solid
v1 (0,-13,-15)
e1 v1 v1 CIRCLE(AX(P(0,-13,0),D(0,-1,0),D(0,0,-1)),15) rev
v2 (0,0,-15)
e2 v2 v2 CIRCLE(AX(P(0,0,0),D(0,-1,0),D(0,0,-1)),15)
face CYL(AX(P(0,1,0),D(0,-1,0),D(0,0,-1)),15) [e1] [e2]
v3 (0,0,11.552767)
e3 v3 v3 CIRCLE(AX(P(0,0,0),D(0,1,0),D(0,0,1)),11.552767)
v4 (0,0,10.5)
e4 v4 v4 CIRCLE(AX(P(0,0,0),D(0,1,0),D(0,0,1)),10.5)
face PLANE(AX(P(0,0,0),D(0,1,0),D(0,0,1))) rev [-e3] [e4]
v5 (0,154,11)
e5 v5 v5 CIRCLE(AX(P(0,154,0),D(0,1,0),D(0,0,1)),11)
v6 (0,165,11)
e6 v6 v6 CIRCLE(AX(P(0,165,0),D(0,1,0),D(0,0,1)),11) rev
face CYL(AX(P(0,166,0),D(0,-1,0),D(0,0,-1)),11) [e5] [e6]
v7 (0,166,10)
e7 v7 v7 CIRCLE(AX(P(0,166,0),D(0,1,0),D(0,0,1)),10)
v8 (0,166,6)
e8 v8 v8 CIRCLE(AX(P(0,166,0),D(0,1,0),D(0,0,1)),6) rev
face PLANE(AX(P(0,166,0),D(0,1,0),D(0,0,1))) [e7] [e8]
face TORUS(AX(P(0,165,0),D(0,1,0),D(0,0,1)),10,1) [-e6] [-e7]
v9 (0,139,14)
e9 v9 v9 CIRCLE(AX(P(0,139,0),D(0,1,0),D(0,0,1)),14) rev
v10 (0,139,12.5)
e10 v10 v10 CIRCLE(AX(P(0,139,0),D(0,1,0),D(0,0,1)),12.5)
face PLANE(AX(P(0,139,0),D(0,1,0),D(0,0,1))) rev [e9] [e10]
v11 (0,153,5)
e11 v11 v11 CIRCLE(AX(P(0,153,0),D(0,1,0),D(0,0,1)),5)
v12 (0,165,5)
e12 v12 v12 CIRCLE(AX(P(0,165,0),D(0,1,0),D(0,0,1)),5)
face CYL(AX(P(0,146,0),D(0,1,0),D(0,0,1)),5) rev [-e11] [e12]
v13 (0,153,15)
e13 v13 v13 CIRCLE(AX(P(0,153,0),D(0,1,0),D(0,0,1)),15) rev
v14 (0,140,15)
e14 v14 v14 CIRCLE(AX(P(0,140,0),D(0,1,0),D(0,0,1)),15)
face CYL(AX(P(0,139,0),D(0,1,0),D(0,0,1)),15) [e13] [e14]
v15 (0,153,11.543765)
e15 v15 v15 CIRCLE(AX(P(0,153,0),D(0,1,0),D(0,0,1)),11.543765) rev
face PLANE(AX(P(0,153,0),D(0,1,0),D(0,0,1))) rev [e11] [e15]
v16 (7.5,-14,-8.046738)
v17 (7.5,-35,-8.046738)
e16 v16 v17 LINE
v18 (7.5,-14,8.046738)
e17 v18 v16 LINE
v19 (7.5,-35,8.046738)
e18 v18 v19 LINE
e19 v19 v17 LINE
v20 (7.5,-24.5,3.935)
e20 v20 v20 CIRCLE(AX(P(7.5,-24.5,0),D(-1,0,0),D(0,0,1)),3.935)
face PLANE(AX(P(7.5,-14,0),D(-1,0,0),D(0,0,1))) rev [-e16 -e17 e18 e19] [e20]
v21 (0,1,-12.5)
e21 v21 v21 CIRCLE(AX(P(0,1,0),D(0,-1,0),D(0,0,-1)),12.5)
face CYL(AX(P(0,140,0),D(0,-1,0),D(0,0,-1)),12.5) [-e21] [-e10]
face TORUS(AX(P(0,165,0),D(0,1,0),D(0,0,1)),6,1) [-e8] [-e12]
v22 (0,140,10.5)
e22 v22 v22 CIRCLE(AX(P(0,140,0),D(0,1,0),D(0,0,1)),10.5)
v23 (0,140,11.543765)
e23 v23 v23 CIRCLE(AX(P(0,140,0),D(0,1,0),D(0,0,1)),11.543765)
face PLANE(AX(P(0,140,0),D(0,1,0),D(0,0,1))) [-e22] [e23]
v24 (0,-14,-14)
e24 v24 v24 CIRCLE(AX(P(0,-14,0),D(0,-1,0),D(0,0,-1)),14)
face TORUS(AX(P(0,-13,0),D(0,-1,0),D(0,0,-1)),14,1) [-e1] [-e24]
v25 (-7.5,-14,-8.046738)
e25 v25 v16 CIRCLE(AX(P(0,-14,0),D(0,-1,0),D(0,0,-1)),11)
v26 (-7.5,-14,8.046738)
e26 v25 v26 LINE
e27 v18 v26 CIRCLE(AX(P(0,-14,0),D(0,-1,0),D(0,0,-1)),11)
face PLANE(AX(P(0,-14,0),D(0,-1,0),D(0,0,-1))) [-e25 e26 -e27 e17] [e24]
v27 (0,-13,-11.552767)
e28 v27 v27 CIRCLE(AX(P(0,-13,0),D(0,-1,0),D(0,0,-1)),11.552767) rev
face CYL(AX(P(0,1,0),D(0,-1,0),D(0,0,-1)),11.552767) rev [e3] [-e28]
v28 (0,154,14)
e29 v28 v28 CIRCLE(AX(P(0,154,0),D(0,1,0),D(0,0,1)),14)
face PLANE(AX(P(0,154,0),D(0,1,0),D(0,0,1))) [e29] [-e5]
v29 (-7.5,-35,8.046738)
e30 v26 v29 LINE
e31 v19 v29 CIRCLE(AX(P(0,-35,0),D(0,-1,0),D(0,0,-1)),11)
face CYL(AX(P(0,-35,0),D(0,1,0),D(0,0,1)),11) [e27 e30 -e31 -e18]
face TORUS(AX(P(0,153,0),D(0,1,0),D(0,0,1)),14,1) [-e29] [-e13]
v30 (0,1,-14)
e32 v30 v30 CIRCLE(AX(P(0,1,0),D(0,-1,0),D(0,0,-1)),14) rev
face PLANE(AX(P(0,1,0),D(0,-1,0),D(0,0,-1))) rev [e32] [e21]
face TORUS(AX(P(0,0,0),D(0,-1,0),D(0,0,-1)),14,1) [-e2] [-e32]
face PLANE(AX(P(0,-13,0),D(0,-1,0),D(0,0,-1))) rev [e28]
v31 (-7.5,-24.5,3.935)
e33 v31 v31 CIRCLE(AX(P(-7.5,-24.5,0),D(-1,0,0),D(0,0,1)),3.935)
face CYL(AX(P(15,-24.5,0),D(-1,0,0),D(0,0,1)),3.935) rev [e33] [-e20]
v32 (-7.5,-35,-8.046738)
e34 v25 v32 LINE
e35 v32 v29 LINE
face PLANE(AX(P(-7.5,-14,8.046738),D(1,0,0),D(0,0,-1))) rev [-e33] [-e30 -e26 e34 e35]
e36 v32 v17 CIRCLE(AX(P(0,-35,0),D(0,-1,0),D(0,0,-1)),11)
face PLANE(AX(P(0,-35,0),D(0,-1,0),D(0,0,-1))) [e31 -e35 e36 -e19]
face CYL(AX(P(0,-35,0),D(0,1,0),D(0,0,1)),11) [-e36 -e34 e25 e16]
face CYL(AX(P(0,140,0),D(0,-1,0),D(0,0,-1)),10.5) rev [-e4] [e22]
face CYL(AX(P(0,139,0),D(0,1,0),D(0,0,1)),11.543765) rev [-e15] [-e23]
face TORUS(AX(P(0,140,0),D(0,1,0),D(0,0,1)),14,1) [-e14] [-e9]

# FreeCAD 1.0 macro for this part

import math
import FreeCAD as App
import Part
import Sketcher

V = App.Vector
Q = App.Units.Quantity


def edges_at(feature, points):
    """Names of the edges that pass closest to the given points."""
    edges = feature.Shape.Edges
    near = lambda p: min(range(len(edges)), key=lambda i: edges[i].distToShape(Part.Vertex(*p))[0])
    return sorted({f"Edge{near(p) + 1}" for p in points})

doc = App.newDocument("Part")
body = doc.addObject("PartDesign::Body", "Body")

sketch1 = doc.addObject("Sketcher::SketchObject", "Sketch")
body.addObject(sketch1)
sketch1.AttachmentSupport = (doc.XZ_Plane, [""])
sketch1.MapMode = "FlatFace"
sketch1.addGeometry([
    Part.Circle(V(0, 0, 0), V(0, 0, 1), 12),
    Part.Circle(V(0, 0, 0), V(0, 0, 1), 10),
], False)
sketch1.addConstraint([
    Sketcher.Constraint("Coincident", 0, 3, -1, 1),
    Sketcher.Constraint("Coincident", 1, 3, -1, 1),
    Sketcher.Constraint("Diameter", 0, Q("25 mm")),
    Sketcher.Constraint("Diameter", 1, Q("21 mm")),
])
pad1 = doc.addObject("PartDesign::Pad", "Pad")
body.addObject(pad1)
pad1.Profile = sketch1
pad1.Length = 140
pad1.Reversed = True

sketch2 = doc.addObject("Sketcher::SketchObject", "Sketch001")
body.addObject(sketch2)
sketch2.AttachmentSupport = (doc.XZ_Plane, [""])
sketch2.MapMode = "FlatFace"
sketch2.AttachmentOffset = App.Placement(V(0, 0, -140), App.Rotation())
sketch2.addGeometry([
    Part.Circle(V(0, 0, 0), V(0, 0, 1), 15),
    Part.Circle(V(0, 0, 0), V(0, 0, 1), 12),
], False)
sketch2.addConstraint([
    Sketcher.Constraint("Coincident", 0, 3, -1, 1),
    Sketcher.Constraint("Coincident", 1, 3, -1, 1),
    Sketcher.Constraint("Diameter", 0, Q("30 mm")),
    Sketcher.Constraint("Diameter", 1, Q("23.087529 mm")),
])
pad2 = doc.addObject("PartDesign::Pad", "Pad001")
body.addObject(pad2)
pad2.Profile = sketch2
pad2.Type = "TwoLengths"
pad2.Length = 14
pad2.Length2 = 1
pad2.Reversed = True

sketch3 = doc.addObject("Sketcher::SketchObject", "Sketch002")
body.addObject(sketch3)
sketch3.AttachmentSupport = (doc.XZ_Plane, [""])
sketch3.MapMode = "FlatFace"
sketch3.addGeometry([
    Part.Circle(V(0, 0, 0), V(0, 0, 1), 15),
    Part.Circle(V(0, 0, 0), V(0, 0, 1), 12),
], False)
sketch3.addConstraint([
    Sketcher.Constraint("Coincident", 0, 3, -1, 1),
    Sketcher.Constraint("Coincident", 1, 3, -1, 1),
    Sketcher.Constraint("Diameter", 0, Q("30 mm")),
    Sketcher.Constraint("Diameter", 1, Q("23.105534 mm")),
])
pad3 = doc.addObject("PartDesign::Pad", "Pad002")
body.addObject(pad3)
pad3.Profile = sketch3
pad3.Type = "TwoLengths"
pad3.Length = 14
pad3.Length2 = 1
doc.recompute()

fillet = doc.addObject("PartDesign::Fillet", "Fillet")
body.addObject(fillet)
fillet.Base = (pad3, edges_at(pad3, [(-15, 139, 0)]))
fillet.Radius = 1
doc.recompute()

fillet2 = doc.addObject("PartDesign::Fillet", "Fillet001")
body.addObject(fillet2)
fillet2.Base = (fillet, edges_at(fillet, [(-15, 1, 0)]))
fillet2.Radius = 1
doc.recompute()

fillet3 = doc.addObject("PartDesign::Fillet", "Fillet002")
body.addObject(fillet3)
fillet3.Base = (fillet2, edges_at(fillet2, [(-15, 154, 0)]))
fillet3.Radius = 1
doc.recompute()

fillet4 = doc.addObject("PartDesign::Fillet", "Fillet003")
body.addObject(fillet4)
fillet4.Base = (fillet3, edges_at(fillet3, [(-15, -14, 0)]))
fillet4.Radius = 1

sketch4 = doc.addObject("Sketcher::SketchObject", "Sketch003")
body.addObject(sketch4)
sketch4.AttachmentSupport = (doc.XZ_Plane, [""])
sketch4.MapMode = "FlatFace"
sketch4.AttachmentOffset = App.Placement(V(0, 0, -154), App.Rotation())
sketch4.addGeometry(Part.Circle(V(0, 0, 0), V(0, 0, 1), 13), False)
sketch4.addConstraint([
    Sketcher.Constraint("Coincident", 0, 3, -1, 1),
    Sketcher.Constraint("Diameter", 0, Q("25.186454 mm")),
])
pad4 = doc.addObject("PartDesign::Pad", "Pad003")
body.addObject(pad4)
pad4.Profile = sketch4
pad4.Length = 1

sketch5 = doc.addObject("Sketcher::SketchObject", "Sketch004")
body.addObject(sketch5)
sketch5.AttachmentSupport = (doc.XZ_Plane, [""])
sketch5.MapMode = "FlatFace"
sketch5.AttachmentOffset = App.Placement(V(0, 0, 14), App.Rotation())
sketch5.addGeometry(Part.Circle(V(0, 0, 0), V(0, 0, 1), 13), False)
sketch5.addConstraint([
    Sketcher.Constraint("Coincident", 0, 3, -1, 1),
    Sketcher.Constraint("Diameter", 0, Q("25.474516 mm")),
])
pad5 = doc.addObject("PartDesign::Pad", "Pad004")
body.addObject(pad5)
pad5.Profile = sketch5
pad5.Length = 1
pad5.Reversed = True

sketch6 = doc.addObject("Sketcher::SketchObject", "Sketch005")
body.addObject(sketch6)
sketch6.AttachmentSupport = (doc.XZ_Plane, [""])
sketch6.MapMode = "FlatFace"
sketch6.AttachmentOffset = App.Placement(V(0, 0, 14), App.Rotation())
sketch6.addGeometry(Part.Circle(V(0, 0, 0), V(0, 0, 1), 11), False)
sketch6.addConstraint([
    Sketcher.Constraint("Coincident", 0, 3, -1, 1),
    Sketcher.Constraint("Diameter", 0, Q("22 mm")),
])
pad6 = doc.addObject("PartDesign::Pad", "Pad005")
body.addObject(pad6)
pad6.Profile = sketch6
pad6.Length = 21

sketch7 = doc.addObject("Sketcher::SketchObject", "Sketch006")
body.addObject(sketch7)
sketch7.AttachmentSupport = (doc.XZ_Plane, [""])
sketch7.MapMode = "FlatFace"
sketch7.AttachmentOffset = App.Placement(V(0, 0, 35), App.Rotation())
sketch7.addGeometry([
    Part.LineSegment(V(-8, -8, 0), V(-8, 8, 0)),
    Part.ArcOfCircle(Part.Circle(V(0, 0, 0), V(0, 0, 1), 11), math.radians(133), math.radians(227)),
    Part.ArcOfCircle(Part.Circle(V(0, 0, 0), V(0, 0, 1), 11), math.radians(-47), math.radians(47)),
    Part.LineSegment(V(8, 8, 0), V(8, -8, 0)),
], False)
sketch7.addConstraint([
    Sketcher.Constraint("Coincident", 0, 1, 1, 2),
    Sketcher.Constraint("Coincident", 1, 1, 0, 2),
    Sketcher.Constraint("Coincident", 2, 1, 3, 2),
    Sketcher.Constraint("Coincident", 3, 1, 2, 2),
    Sketcher.Constraint("Vertical", 0),
    Sketcher.Constraint("Vertical", 3),
    Sketcher.Constraint("Coincident", 1, 3, -1, 1),
    Sketcher.Constraint("Coincident", 2, 3, -1, 1),
    Sketcher.Constraint("Equal", 1, 2),
    Sketcher.Constraint("Horizontal", 0, 1, 2, 1),
    Sketcher.Constraint("Radius", 1, Q("11 mm")),
    Sketcher.Constraint("DistanceX", 0, 1, 2, 1, Q("15 mm")),
])
pocket1 = doc.addObject("PartDesign::Pocket", "Pocket")
body.addObject(pocket1)
pocket1.Profile = sketch7
pocket1.Length = 21

sketch8 = doc.addObject("Sketcher::SketchObject", "Sketch007")
body.addObject(sketch8)
sketch8.AttachmentSupport = (doc.YZ_Plane, [""])
sketch8.MapMode = "FlatFace"
sketch8.AttachmentOffset = App.Placement(V(0, 0, -7.5), App.Rotation())
sketch8.addGeometry(Part.Circle(V(-24.5, 0, 0), V(0, 0, 1), 3.9), False)
sketch8.addConstraint([
    Sketcher.Constraint("PointOnObject", 0, 3, -1),
    Sketcher.Constraint("Diameter", 0, Q("7.87 mm")),
    Sketcher.Constraint("DistanceX", 0, 3, -1, 1, Q("24.5 mm")),
])
pocket2 = doc.addObject("PartDesign::Pocket", "Pocket001")
body.addObject(pocket2)
pocket2.Profile = sketch8
pocket2.Type = "ThroughAll"
pocket2.Reversed = True

sketch9 = doc.addObject("Sketcher::SketchObject", "Sketch008")
body.addObject(sketch9)
sketch9.AttachmentSupport = (doc.XZ_Plane, [""])
sketch9.MapMode = "FlatFace"
sketch9.AttachmentOffset = App.Placement(V(0, 0, -154), App.Rotation())
sketch9.addGeometry(Part.Circle(V(0, 0, 0), V(0, 0, 1), 11), False)
sketch9.addConstraint([
    Sketcher.Constraint("Coincident", 0, 3, -1, 1),
    Sketcher.Constraint("Diameter", 0, Q("22 mm")),
])
pad7 = doc.addObject("PartDesign::Pad", "Pad006")
body.addObject(pad7)
pad7.Profile = sketch9
pad7.Length = 12
pad7.Reversed = True

sketch10 = doc.addObject("Sketcher::SketchObject", "Sketch009")
body.addObject(sketch10)
sketch10.AttachmentSupport = (doc.XZ_Plane, [""])
sketch10.MapMode = "FlatFace"
sketch10.AttachmentOffset = App.Placement(V(0, 0, -166), App.Rotation())
sketch10.addGeometry(Part.Circle(V(0, 0, 0), V(0, 0, 1), 5), False)
sketch10.addConstraint([
    Sketcher.Constraint("Coincident", 0, 3, -1, 1),
    Sketcher.Constraint("Diameter", 0, Q("10 mm")),
])
pocket3 = doc.addObject("PartDesign::Pocket", "Pocket002")
body.addObject(pocket3)
pocket3.Profile = sketch10
pocket3.Length = 20
pocket3.Reversed = True
doc.recompute()

fillet5 = doc.addObject("PartDesign::Fillet", "Fillet004")
body.addObject(fillet5)
fillet5.Base = (pocket3, edges_at(pocket3, [(-11, 166, 0)]))
fillet5.Radius = 1
doc.recompute()

fillet6 = doc.addObject("PartDesign::Fillet", "Fillet005")
body.addObject(fillet6)
fillet6.Base = (fillet5, edges_at(fillet5, [(-5, 166, 0)]))
fillet6.Radius = 1

doc.recompute()
